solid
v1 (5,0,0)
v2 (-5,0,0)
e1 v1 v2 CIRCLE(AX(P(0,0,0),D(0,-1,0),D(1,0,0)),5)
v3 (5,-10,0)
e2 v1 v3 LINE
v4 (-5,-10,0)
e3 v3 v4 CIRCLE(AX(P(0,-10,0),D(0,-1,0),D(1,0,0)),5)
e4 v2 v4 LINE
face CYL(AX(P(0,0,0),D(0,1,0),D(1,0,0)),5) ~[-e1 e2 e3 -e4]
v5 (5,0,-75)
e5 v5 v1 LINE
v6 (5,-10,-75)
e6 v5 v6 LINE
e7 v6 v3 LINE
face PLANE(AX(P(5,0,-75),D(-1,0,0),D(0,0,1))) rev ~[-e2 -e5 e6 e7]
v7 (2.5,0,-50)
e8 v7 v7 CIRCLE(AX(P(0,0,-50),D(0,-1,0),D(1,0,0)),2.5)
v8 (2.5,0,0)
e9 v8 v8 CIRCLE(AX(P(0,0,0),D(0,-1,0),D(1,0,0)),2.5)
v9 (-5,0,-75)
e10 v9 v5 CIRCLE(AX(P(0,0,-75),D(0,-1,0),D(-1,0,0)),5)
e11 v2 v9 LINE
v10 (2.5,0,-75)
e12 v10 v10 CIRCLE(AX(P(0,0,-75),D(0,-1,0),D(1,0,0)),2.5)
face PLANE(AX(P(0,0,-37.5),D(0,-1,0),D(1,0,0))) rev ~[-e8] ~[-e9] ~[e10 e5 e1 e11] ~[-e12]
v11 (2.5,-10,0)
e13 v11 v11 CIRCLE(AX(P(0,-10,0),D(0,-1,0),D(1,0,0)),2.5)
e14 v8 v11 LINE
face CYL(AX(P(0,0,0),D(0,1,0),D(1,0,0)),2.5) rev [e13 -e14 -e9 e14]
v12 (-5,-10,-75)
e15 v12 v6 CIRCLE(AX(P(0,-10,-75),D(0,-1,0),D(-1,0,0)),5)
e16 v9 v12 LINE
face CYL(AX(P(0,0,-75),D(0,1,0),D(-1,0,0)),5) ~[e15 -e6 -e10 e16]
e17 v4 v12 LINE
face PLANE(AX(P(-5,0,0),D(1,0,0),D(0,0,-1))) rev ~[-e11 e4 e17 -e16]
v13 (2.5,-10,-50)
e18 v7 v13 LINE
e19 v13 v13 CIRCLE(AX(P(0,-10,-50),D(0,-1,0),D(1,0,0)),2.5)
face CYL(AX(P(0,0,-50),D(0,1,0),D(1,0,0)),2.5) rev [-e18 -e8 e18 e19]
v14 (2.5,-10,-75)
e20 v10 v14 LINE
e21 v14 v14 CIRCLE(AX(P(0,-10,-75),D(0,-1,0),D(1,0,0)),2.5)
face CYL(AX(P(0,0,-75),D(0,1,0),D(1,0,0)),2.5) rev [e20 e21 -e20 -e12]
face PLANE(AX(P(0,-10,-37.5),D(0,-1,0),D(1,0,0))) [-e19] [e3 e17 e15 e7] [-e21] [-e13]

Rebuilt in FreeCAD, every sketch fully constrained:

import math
import FreeCAD as App
import Part
import Sketcher
from FreeCAD import Vector
Q = App.Units.Quantity

doc = App.newDocument("Part")
body = doc.addObject("PartDesign::Body", "Body")

# Sketch on XZ plane
sketch1 = doc.addObject("Sketcher::SketchObject", "Sketch")
body.addObject(sketch1)
sketch1.AttachmentSupport = (doc.XZ_Plane, [""])
sketch1.MapMode = "FlatFace"
sketch1.addGeometry([
    Part.LineSegment(Vector(5, -75, 0), Vector(5, 0, 0)),  # 0
    Part.ArcOfCircle(Part.Circle(Vector(0, 0, 0), Vector(0, 0, 1), 5), math.radians(0), math.radians(180)),  # 1
    Part.LineSegment(Vector(-5, 0, 0), Vector(-5, -75, 0)),  # 2
    Part.ArcOfCircle(Part.Circle(Vector(0, -75, 0), Vector(0, 0, 1), 5), math.radians(180), math.radians(360)),  # 3
    Part.Circle(Vector(0, -75, 0), Vector(0, 0, 1), 2.5),  # 4
    Part.Circle(Vector(0, -50, 0), Vector(0, 0, 1), 2.5),  # 5
    Part.Circle(Vector(0, 0, 0), Vector(0, 0, 1), 2.5),  # 6
], False)
sketch1.addConstraint([
    Sketcher.Constraint("Tangent", 0, 2, 1, 1),
    Sketcher.Constraint("Tangent", 1, 2, 2, 1),
    Sketcher.Constraint("Tangent", 2, 2, 3, 1),
    Sketcher.Constraint("Tangent", 3, 2, 0, 1),
    Sketcher.Constraint("Vertical", 0),
    Sketcher.Constraint("Vertical", 2),
    Sketcher.Constraint("Coincident", 1, 3, -1, 1),
    Sketcher.Constraint("Coincident", 6, 3, -1, 1),
    Sketcher.Constraint("Coincident", 4, 3, 3, 3),
    Sketcher.Constraint("Equal", 4, 5),
    Sketcher.Constraint("Equal", 5, 6),
    Sketcher.Constraint("PointOnObject", 5, 3, -2),
    Sketcher.Constraint("Diameter", 4, Q("5 mm")),
    Sketcher.Constraint("Radius", 1, Q("5 mm")),
    Sketcher.Constraint("DistanceY", 0, 1, 0, 2, Q("75 mm")),
    Sketcher.Constraint("DistanceY", 5, 3, -1, 1, Q("50 mm")),
])
pad1 = doc.addObject("PartDesign::Pad", "Pad")
body.addObject(pad1)
pad1.Profile = sketch1
pad1.Length = 10

doc.recompute()
